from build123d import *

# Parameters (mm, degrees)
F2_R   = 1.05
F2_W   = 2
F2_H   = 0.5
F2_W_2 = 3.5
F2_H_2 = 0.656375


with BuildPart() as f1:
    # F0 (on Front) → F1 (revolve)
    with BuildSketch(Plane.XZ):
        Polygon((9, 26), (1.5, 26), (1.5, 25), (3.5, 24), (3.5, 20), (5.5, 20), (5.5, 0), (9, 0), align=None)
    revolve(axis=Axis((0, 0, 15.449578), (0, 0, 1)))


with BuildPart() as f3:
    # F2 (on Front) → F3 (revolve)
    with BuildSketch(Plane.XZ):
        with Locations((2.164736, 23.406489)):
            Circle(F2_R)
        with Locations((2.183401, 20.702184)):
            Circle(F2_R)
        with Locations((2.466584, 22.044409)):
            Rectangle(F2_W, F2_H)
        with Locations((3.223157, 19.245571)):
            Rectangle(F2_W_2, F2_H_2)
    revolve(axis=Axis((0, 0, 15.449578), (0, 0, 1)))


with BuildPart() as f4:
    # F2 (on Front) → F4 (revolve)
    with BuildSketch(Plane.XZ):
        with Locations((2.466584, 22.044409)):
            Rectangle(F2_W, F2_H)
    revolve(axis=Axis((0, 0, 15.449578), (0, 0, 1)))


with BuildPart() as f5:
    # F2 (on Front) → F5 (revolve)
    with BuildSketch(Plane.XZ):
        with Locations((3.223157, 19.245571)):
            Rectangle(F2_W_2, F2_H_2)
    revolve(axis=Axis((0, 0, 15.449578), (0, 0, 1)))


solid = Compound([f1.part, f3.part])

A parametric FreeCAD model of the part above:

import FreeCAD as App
import Part
import Sketcher

V = App.Vector
Q = App.Units.Quantity

doc = App.newDocument("Part")
body = doc.addObject("PartDesign::Body", "Body")

# Sketch on XZ plane
sketch1 = body.newObject("Sketcher::SketchObject", "Sketch")
sketch1.AttachmentSupport = (doc.getObject("XZ_Plane"), [""])
sketch1.MapMode = "FlatFace"
sketch1.addGeometry([
    Part.LineSegment(V(9, 26, 0), V(1.5, 26, 0)),  # 0
    Part.LineSegment(V(1.5, 26, 0), V(1.5, 25, 0)),  # 1
    Part.LineSegment(V(1.5, 25, 0), V(3.5, 24, 0)),  # 2
    Part.LineSegment(V(3.5, 24, 0), V(3.5, 20, 0)),  # 3
    Part.LineSegment(V(3.5, 20, 0), V(5.5, 20, 0)),  # 4
    Part.LineSegment(V(5.5, 20, 0), V(5.5, 0, 0)),  # 5
    Part.LineSegment(V(5.5, 0, 0), V(9, 0, 0)),  # 6
    Part.LineSegment(V(9, 0, 0), V(9, 26, 0)),  # 7
], False)
sketch1.addConstraint([
    Sketcher.Constraint("Coincident", 0, 2, 1, 1),
    Sketcher.Constraint("Coincident", 1, 2, 2, 1),
    Sketcher.Constraint("Coincident", 2, 2, 3, 1),
    Sketcher.Constraint("Coincident", 3, 2, 4, 1),
    Sketcher.Constraint("Coincident", 4, 2, 5, 1),
    Sketcher.Constraint("Coincident", 5, 2, 6, 1),
    Sketcher.Constraint("Coincident", 6, 2, 7, 1),
    Sketcher.Constraint("Coincident", 7, 2, 0, 1),
    Sketcher.Constraint("Horizontal", 0),
    Sketcher.Constraint("Vertical", 1),
    Sketcher.Constraint("Vertical", 3),
    Sketcher.Constraint("Horizontal", 4),
    Sketcher.Constraint("Vertical", 5),
    Sketcher.Constraint("Horizontal", 6),
    Sketcher.Constraint("Vertical", 7),
    Sketcher.Constraint("PointOnObject", 5, 2, -1),
    Sketcher.Constraint("DistanceX", 4, 1, 4, 2, Q("2 mm")),
    Sketcher.Constraint("DistanceY", 1, 2, 1, 1, Q("1 mm")),
    Sketcher.Constraint("DistanceY", 3, 2, 3, 1, Q("4 mm")),
    Sketcher.Constraint("DistanceY", 5, 2, 5, 1, Q("20 mm")),
    Sketcher.Constraint("DistanceY", 7, 1, 7, 2, Q("26 mm")),
    Sketcher.Constraint("DistanceX", 0, 2, 0, 1, Q("7.5 mm")),
    Sketcher.Constraint("DistanceX", 6, 1, 6, 2, Q("3.5 mm")),
    Sketcher.Constraint("DistanceX", -1, 1, 6, 2, Q("9 mm")),
])
revolution = body.newObject("PartDesign::Revolution", "Revolution")
revolution.Profile = sketch1
revolution.ReferenceAxis = (sketch1, ["V_Axis"])
revolution.Angle = 360
body2 = doc.addObject("PartDesign::Body", "Body001")
body2.AllowCompound = True

# Sketch on XZ plane
sketch2 = body2.newObject("Sketcher::SketchObject", "Sketch001")
sketch2.AttachmentSupport = (doc.getObject("XZ_Plane001"), [""])
sketch2.MapMode = "FlatFace"
sketch2.addGeometry([
    Part.Circle(V(2.164736, 23.406489, 0), V(0, 0, 1), 1.05),  # 0
    Part.Circle(V(2.183401, 20.702184, 0), V(0, 0, 1), 1.05),  # 1
    Part.LineSegment(V(1.466584, 22.294409, 0), V(1.466584, 21.794409, 0)),  # 2
    Part.LineSegment(V(1.466584, 21.794409, 0), V(3.466584, 21.794409, 0)),  # 3
    Part.LineSegment(V(3.466584, 21.794409, 0), V(3.466584, 22.294409, 0)),  # 4
    Part.LineSegment(V(3.466584, 22.294409, 0), V(1.466584, 22.294409, 0)),  # 5
    Part.LineSegment(V(1.473157, 19.573759, 0), V(1.473157, 18.917383, 0)),  # 6
    Part.LineSegment(V(1.473157, 18.917383, 0), V(4.973157, 18.917383, 0)),  # 7
    Part.LineSegment(V(4.973157, 18.917383, 0), V(4.973157, 19.573759, 0)),  # 8
    Part.LineSegment(V(4.973157, 19.573759, 0), V(1.473157, 19.573759, 0)),  # 9
], False)
sketch2.addConstraint([
    Sketcher.Constraint("Coincident", 2, 2, 3, 1),
    Sketcher.Constraint("Coincident", 3, 2, 4, 1),
    Sketcher.Constraint("Coincident", 4, 2, 5, 1),
    Sketcher.Constraint("Coincident", 5, 2, 2, 1),
    Sketcher.Constraint("Coincident", 6, 2, 7, 1),
    Sketcher.Constraint("Coincident", 7, 2, 8, 1),
    Sketcher.Constraint("Coincident", 8, 2, 9, 1),
    Sketcher.Constraint("Coincident", 9, 2, 6, 1),
    Sketcher.Constraint("Vertical", 2),
    Sketcher.Constraint("Horizontal", 3),
    Sketcher.Constraint("Vertical", 4),
    Sketcher.Constraint("Horizontal", 5),
    Sketcher.Constraint("Vertical", 6),
    Sketcher.Constraint("Horizontal", 7),
    Sketcher.Constraint("Vertical", 8),
    Sketcher.Constraint("Horizontal", 9),
    Sketcher.Constraint("Equal", 0, 1),
    Sketcher.Constraint("Diameter", 0, Q("2.1 mm")),
    Sketcher.Constraint("DistanceX", 3, 1, 3, 2, Q("2 mm")),
    Sketcher.Constraint("DistanceX", 7, 1, 7, 2, Q("3.5 mm")),
    Sketcher.Constraint("DistanceY", 2, 2, 2, 1, Q("0.5 mm")),
    Sketcher.Constraint("DistanceX", -1, 1, 1, 3, Q("2.183401 mm")),
    Sketcher.Constraint("DistanceY", 6, 2, 1, 3, Q("1.7848 mm")),
    Sketcher.Constraint("DistanceY", 6, 2, 6, 1, Q("0.656375 mm")),
    Sketcher.Constraint("DistanceY", -1, 1, 0, 3, Q("23.406489 mm")),
    Sketcher.Constraint("DistanceY", -1, 1, 2, 2, Q("21.794409 mm")),
    Sketcher.Constraint("DistanceY", -1, 1, 8, 2, Q("19.573759 mm")),
    Sketcher.Constraint("DistanceX", 2, 2, 0, 3, Q("0.698152 mm")),
    Sketcher.Constraint("DistanceX", -1, 1, 0, 3, Q("2.164736 mm")),
    Sketcher.Constraint("DistanceX", -1, 1, 6, 2, Q("1.473157 mm")),
])
revolution2 = body2.newObject("PartDesign::Revolution", "Revolution001")
revolution2.Profile = sketch2
revolution2.ReferenceAxis = (sketch2, ["V_Axis"])
revolution2.Angle = 360
body3 = doc.addObject("PartDesign::Body", "Body002")

# Sketch on XZ plane
sketch3 = body3.newObject("Sketcher::SketchObject", "Sketch002")
sketch3.AttachmentSupport = (doc.getObject("XZ_Plane002"), [""])
sketch3.MapMode = "FlatFace"
sketch3.addGeometry([
    Part.LineSegment(V(1.466584, 22.294409, 0), V(1.466584, 21.794409, 0)),
    Part.LineSegment(V(1.466584, 21.794409, 0), V(3.466584, 21.794409, 0)),
    Part.LineSegment(V(3.466584, 21.794409, 0), V(3.466584, 22.294409, 0)),
    Part.LineSegment(V(3.466584, 22.294409, 0), V(1.466584, 22.294409, 0)),
], False)
sketch3.addConstraint([
    Sketcher.Constraint("Coincident", 0, 2, 1, 1),
    Sketcher.Constraint("Coincident", 1, 2, 2, 1),
    Sketcher.Constraint("Coincident", 2, 2, 3, 1),
    Sketcher.Constraint("Coincident", 3, 2, 0, 1),
    Sketcher.Constraint("Vertical", 0),
    Sketcher.Constraint("Horizontal", 1),
    Sketcher.Constraint("Vertical", 2),
    Sketcher.Constraint("Horizontal", 3),
    Sketcher.Constraint("DistanceX", 1, 1, 1, 2, Q("2 mm")),
    Sketcher.Constraint("DistanceY", 0, 2, 0, 1, Q("0.5 mm")),
    Sketcher.Constraint("DistanceY", -1, 1, 0, 2, Q("21.794409 mm")),
    Sketcher.Constraint("DistanceX", -1, 1, 0, 2, Q("1.466584 mm")),
])
revolution3 = body3.newObject("PartDesign::Revolution", "Revolution002")
revolution3.Profile = sketch3
revolution3.ReferenceAxis = (sketch3, ["V_Axis"])
revolution3.Angle = 360
body4 = doc.addObject("PartDesign::Body", "Body003")

# Sketch on XZ plane
sketch4 = body4.newObject("Sketcher::SketchObject", "Sketch003")
sketch4.AttachmentSupport = (doc.getObject("XZ_Plane003"), [""])
sketch4.MapMode = "FlatFace"
sketch4.addGeometry([
    Part.LineSegment(V(1.473157, 19.573759, 0), V(1.473157, 18.917383, 0)),
    Part.LineSegment(V(1.473157, 18.917383, 0), V(4.973157, 18.917383, 0)),
    Part.LineSegment(V(4.973157, 18.917383, 0), V(4.973157, 19.573759, 0)),
    Part.LineSegment(V(4.973157, 19.573759, 0), V(1.473157, 19.573759, 0)),
], False)
sketch4.addConstraint([
    Sketcher.Constraint("Coincident", 0, 2, 1, 1),
    Sketcher.Constraint("Coincident", 1, 2, 2, 1),
    Sketcher.Constraint("Coincident", 2, 2, 3, 1),
    Sketcher.Constraint("Coincident", 3, 2, 0, 1),
    Sketcher.Constraint("Vertical", 0),
    Sketcher.Constraint("Horizontal", 1),
    Sketcher.Constraint("Vertical", 2),
    Sketcher.Constraint("Horizontal", 3),
    Sketcher.Constraint("DistanceX", 1, 1, 1, 2, Q("3.5 mm")),
    Sketcher.Constraint("DistanceY", 0, 2, 0, 1, Q("0.656375 mm")),
    Sketcher.Constraint("DistanceY", -1, 1, 2, 2, Q("19.573759 mm")),
    Sketcher.Constraint("DistanceX", -1, 1, 0, 2, Q("1.473157 mm")),
])
revolution4 = body4.newObject("PartDesign::Revolution", "Revolution003")
revolution4.Profile = sketch4
revolution4.ReferenceAxis = (sketch4, ["V_Axis"])
revolution4.Angle = 360
body3.Visibility = False
body4.Visibility = False

doc.recompute()
